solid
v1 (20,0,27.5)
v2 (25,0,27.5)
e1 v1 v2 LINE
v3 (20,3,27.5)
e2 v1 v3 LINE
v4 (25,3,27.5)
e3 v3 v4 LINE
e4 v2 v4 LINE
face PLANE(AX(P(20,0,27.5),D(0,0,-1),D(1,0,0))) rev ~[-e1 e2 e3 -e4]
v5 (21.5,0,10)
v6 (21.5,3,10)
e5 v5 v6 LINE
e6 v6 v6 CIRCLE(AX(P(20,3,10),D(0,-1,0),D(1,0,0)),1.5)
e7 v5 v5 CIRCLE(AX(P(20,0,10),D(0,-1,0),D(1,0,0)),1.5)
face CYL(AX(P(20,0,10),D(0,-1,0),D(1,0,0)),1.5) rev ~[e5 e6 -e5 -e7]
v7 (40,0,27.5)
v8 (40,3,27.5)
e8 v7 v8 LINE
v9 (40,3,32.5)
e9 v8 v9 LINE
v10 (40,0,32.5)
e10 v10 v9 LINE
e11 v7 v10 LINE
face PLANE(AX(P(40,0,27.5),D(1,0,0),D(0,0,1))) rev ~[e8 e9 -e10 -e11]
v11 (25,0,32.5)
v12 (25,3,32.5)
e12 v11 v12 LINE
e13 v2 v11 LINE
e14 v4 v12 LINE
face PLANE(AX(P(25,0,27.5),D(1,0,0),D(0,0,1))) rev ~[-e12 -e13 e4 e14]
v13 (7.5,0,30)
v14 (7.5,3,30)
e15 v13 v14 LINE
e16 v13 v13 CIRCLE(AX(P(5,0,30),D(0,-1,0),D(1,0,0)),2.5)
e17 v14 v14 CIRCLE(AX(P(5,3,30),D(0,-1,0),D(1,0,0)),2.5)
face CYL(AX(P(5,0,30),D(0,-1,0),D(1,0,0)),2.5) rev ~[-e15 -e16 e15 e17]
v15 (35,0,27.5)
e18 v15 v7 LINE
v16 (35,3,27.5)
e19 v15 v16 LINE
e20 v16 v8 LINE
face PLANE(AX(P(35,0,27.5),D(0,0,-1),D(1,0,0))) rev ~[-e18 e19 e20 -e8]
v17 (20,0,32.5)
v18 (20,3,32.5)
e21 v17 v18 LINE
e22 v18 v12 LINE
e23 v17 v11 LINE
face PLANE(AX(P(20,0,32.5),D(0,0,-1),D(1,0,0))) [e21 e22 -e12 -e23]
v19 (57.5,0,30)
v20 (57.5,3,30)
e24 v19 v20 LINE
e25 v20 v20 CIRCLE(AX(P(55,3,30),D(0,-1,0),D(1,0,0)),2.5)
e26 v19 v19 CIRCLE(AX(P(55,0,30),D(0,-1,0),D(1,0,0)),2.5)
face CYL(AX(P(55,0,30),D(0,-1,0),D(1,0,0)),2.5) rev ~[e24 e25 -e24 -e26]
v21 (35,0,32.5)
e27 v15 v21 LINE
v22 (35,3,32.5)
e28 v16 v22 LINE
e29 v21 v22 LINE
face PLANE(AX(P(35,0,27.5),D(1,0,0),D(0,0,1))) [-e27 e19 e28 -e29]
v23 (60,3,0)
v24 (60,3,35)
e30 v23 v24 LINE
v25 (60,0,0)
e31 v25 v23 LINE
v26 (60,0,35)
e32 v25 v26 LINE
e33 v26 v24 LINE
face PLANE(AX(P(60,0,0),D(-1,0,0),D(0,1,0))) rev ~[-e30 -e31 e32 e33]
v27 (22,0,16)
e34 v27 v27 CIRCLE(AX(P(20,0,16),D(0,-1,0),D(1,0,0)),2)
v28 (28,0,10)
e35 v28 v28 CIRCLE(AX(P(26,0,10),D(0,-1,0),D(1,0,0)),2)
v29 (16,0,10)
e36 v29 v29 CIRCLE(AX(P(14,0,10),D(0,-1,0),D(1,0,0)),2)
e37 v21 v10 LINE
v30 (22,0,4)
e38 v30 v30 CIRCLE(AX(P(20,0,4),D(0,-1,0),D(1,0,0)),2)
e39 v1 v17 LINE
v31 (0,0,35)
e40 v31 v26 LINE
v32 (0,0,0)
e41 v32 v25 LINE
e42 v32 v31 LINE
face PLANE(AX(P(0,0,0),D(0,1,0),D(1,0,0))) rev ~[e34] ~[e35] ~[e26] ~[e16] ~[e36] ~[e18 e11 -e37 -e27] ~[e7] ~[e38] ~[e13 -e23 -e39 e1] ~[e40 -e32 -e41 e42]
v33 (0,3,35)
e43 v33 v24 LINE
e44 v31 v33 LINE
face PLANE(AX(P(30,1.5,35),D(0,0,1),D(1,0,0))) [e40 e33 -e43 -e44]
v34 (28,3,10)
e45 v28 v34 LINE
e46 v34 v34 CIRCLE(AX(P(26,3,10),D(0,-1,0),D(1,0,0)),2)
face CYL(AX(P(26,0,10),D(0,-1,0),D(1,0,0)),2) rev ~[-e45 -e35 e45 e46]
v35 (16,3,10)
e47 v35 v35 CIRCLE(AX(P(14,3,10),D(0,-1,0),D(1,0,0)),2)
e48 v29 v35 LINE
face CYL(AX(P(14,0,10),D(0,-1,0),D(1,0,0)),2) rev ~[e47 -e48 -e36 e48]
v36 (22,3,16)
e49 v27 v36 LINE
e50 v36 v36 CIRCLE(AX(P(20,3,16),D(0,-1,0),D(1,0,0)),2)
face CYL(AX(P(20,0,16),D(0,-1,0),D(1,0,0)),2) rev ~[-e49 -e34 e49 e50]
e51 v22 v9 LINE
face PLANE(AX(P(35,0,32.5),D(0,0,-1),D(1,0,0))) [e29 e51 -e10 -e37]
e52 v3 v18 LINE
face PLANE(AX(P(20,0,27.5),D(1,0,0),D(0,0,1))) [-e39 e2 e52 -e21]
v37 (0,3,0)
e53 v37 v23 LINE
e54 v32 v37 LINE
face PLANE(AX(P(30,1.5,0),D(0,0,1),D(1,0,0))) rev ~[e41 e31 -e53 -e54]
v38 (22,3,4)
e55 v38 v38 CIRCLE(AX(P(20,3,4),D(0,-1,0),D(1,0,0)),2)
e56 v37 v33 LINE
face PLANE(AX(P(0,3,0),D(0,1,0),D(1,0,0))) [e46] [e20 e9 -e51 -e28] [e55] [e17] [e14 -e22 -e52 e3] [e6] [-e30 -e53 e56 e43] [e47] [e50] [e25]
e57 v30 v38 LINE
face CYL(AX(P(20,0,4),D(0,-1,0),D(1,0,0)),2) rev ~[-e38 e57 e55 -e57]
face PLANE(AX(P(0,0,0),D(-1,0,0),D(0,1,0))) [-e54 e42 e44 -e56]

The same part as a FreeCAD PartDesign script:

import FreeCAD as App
import Part
import Sketcher

V = App.Vector
Q = App.Units.Quantity

doc = App.newDocument("Part")
params = doc.addObject("Spreadsheet::Sheet", "Params")
for row, (alias, value) in enumerate([
    ("sketch1_width", "60 mm"),
    ("sketch1_height", "3 mm"),
    ("pad1_length", "35 mm"),
    ("sketch2_diameter", "3 mm"),
    ("sketch2_diameter2", "4 mm"),
    ("sketch2_diameter3", "5 mm"),
    ("sketch2_width", "5 mm"),
    ("pocket1_length", "3 mm"),
], start=1):
    params.set(f"A{row}", alias)
    params.set(f"B{row}", "=" + value)
    params.setAlias(f"B{row}", alias)

body = doc.addObject("PartDesign::Body", "Body")

# Sketch on XY plane
sketch1 = body.newObject("Sketcher::SketchObject", "Sketch")
sketch1.AttachmentSupport = (doc.getObject("XY_Plane"), [""])
sketch1.MapMode = "FlatFace"
sketch1.addGeometry(Part.LineSegment(V(0, 3, 0), V(0, 0, 0)), False)
sketch1.addGeometry(Part.LineSegment(V(0, 0, 0), V(60, 0, 0)), False)
sketch1.addGeometry(Part.LineSegment(V(60, 0, 0), V(60, 3, 0)), False)
sketch1.addGeometry(Part.LineSegment(V(60, 3, 0), V(0, 3, 0)), False)
sketch1.addConstraint(Sketcher.Constraint("Coincident", 0, 2, 1, 1))
sketch1.addConstraint(Sketcher.Constraint("Coincident", 1, 2, 2, 1))
sketch1.addConstraint(Sketcher.Constraint("Coincident", 2, 2, 3, 1))
sketch1.addConstraint(Sketcher.Constraint("Coincident", 3, 2, 0, 1))
sketch1.addConstraint(Sketcher.Constraint("Vertical", 0))
sketch1.addConstraint(Sketcher.Constraint("Horizontal", 1))
sketch1.addConstraint(Sketcher.Constraint("Vertical", 2))
sketch1.addConstraint(Sketcher.Constraint("Horizontal", 3))
sketch1.addConstraint(Sketcher.Constraint("Coincident", 0, 2, -1, 1))
sketch1.addConstraint(Sketcher.Constraint("DistanceX", 1, 1, 1, 2, Q("60 mm")))
sketch1.addConstraint(Sketcher.Constraint("DistanceY", 0, 2, 0, 1, Q("3 mm")))
sketch1.setExpression("Constraints[9]", "Params.sketch1_width")
sketch1.setExpression("Constraints[10]", "Params.sketch1_height")
pad1 = body.newObject("PartDesign::Pad", "Pad")
pad1.Profile = sketch1
pad1.setExpression("Length", "Params.pad1_length")

# Sketch on XZ plane
sketch2 = body.newObject("Sketcher::SketchObject", "Sketch001")
sketch2.AttachmentSupport = (doc.getObject("XZ_Plane"), [""])
sketch2.MapMode = "FlatFace"
sketch2.addGeometry(Part.Circle(V(20, 10, 0), V(0, 0, 1), 1.5), False)
sketch2.addGeometry(Part.Circle(V(26, 10, 0), V(0, 0, 1), 2), False)
sketch2.addGeometry(Part.Circle(V(20, 16, 0), V(0, 0, 1), 2), False)
sketch2.addGeometry(Part.Circle(V(14, 10, 0), V(0, 0, 1), 2), False)
sketch2.addGeometry(Part.Circle(V(20, 4, 0), V(0, 0, 1), 2), False)
sketch2.addGeometry(Part.Circle(V(5, 30, 0), V(0, 0, 1), 2.5), False)
sketch2.addGeometry(Part.Circle(V(55, 30, 0), V(0, 0, 1), 2.5), False)
sketch2.addGeometry(Part.LineSegment(V(20, 32.5, 0), V(20, 27.5, 0)), False)
sketch2.addGeometry(Part.LineSegment(V(20, 27.5, 0), V(25, 27.5, 0)), False)
sketch2.addGeometry(Part.LineSegment(V(25, 27.5, 0), V(25, 32.5, 0)), False)
sketch2.addGeometry(Part.LineSegment(V(25, 32.5, 0), V(20, 32.5, 0)), False)
sketch2.addGeometry(Part.LineSegment(V(35, 32.5, 0), V(35, 27.5, 0)), False)
sketch2.addGeometry(Part.LineSegment(V(35, 27.5, 0), V(40, 27.5, 0)), False)
sketch2.addGeometry(Part.LineSegment(V(40, 27.5, 0), V(40, 32.5, 0)), False)
sketch2.addGeometry(Part.LineSegment(V(40, 32.5, 0), V(35, 32.5, 0)), False)
sketch2.addConstraint(Sketcher.Constraint("Coincident", 7, 2, 8, 1))
sketch2.addConstraint(Sketcher.Constraint("Coincident", 8, 2, 9, 1))
sketch2.addConstraint(Sketcher.Constraint("Coincident", 9, 2, 10, 1))
sketch2.addConstraint(Sketcher.Constraint("Coincident", 10, 2, 7, 1))
sketch2.addConstraint(Sketcher.Constraint("Coincident", 11, 2, 12, 1))
sketch2.addConstraint(Sketcher.Constraint("Coincident", 12, 2, 13, 1))
sketch2.addConstraint(Sketcher.Constraint("Coincident", 13, 2, 14, 1))
sketch2.addConstraint(Sketcher.Constraint("Coincident", 14, 2, 11, 1))
sketch2.addConstraint(Sketcher.Constraint("Vertical", 7))
sketch2.addConstraint(Sketcher.Constraint("Horizontal", 8))
sketch2.addConstraint(Sketcher.Constraint("Vertical", 9))
sketch2.addConstraint(Sketcher.Constraint("Horizontal", 10))
sketch2.addConstraint(Sketcher.Constraint("Vertical", 11))
sketch2.addConstraint(Sketcher.Constraint("Horizontal", 12))
sketch2.addConstraint(Sketcher.Constraint("Vertical", 13))
sketch2.addConstraint(Sketcher.Constraint("Horizontal", 14))
sketch2.addConstraint(Sketcher.Constraint("Equal", 1, 2))
sketch2.addConstraint(Sketcher.Constraint("Equal", 2, 3))
sketch2.addConstraint(Sketcher.Constraint("Equal", 3, 4))
sketch2.addConstraint(Sketcher.Constraint("Equal", 5, 6))
sketch2.addConstraint(Sketcher.Constraint("Horizontal", 0, 3, 1, 3))
sketch2.addConstraint(Sketcher.Constraint("Horizontal", 1, 3, 3, 3))
sketch2.addConstraint(Sketcher.Constraint("Horizontal", 5, 3, 6, 3))
sketch2.addConstraint(Sketcher.Constraint("Horizontal", 8, 2, 11, 2))
sketch2.addConstraint(Sketcher.Constraint("Horizontal", 10, 2, 13, 2))
sketch2.addConstraint(Sketcher.Constraint("Vertical", 0, 3, 2, 3))
sketch2.addConstraint(Sketcher.Constraint("Vertical", 2, 3, 4, 3))
sketch2.addConstraint(Sketcher.Constraint("Vertical", 4, 3, 7, 2))
sketch2.addConstraint(Sketcher.Constraint("Equal", 10, 12))
sketch2.addConstraint(Sketcher.Constraint("Equal", 14, 7))
sketch2.addConstraint(Sketcher.Constraint("Diameter", 0, Q("3 mm")))
sketch2.addConstraint(Sketcher.Constraint("Diameter", 1, Q("4 mm")))
sketch2.addConstraint(Sketcher.Constraint("Diameter", 5, Q("5 mm")))
sketch2.addConstraint(Sketcher.Constraint("DistanceX", 8, 1, 8, 2, Q("5 mm")))
sketch2.addConstraint(Sketcher.Constraint("DistanceX", -1, 1, 0, 3, Q("20 mm")))
sketch2.addConstraint(Sketcher.Constraint("DistanceY", -1, 1, 0, 3, Q("10 mm")))
sketch2.addConstraint(Sketcher.Constraint("DistanceX", -1, 1, 1, 3, Q("26 mm")))
sketch2.addConstraint(Sketcher.Constraint("DistanceY", -1, 1, 2, 3, Q("16 mm")))
sketch2.addConstraint(Sketcher.Constraint("DistanceX", -1, 1, 3, 3, Q("14 mm")))
sketch2.addConstraint(Sketcher.Constraint("DistanceY", -1, 1, 4, 3, Q("4 mm")))
sketch2.addConstraint(Sketcher.Constraint("DistanceX", -1, 1, 5, 3, Q("5 mm")))
sketch2.addConstraint(Sketcher.Constraint("DistanceY", -1, 1, 5, 3, Q("30 mm")))
sketch2.addConstraint(Sketcher.Constraint("DistanceX", -1, 1, 6, 3, Q("55 mm")))
sketch2.addConstraint(Sketcher.Constraint("DistanceX", -1, 1, 11, 2, Q("35 mm")))
sketch2.addConstraint(Sketcher.Constraint("DistanceY", -1, 1, 7, 2, Q("27.5 mm")))
sketch2.setExpression("Constraints[30]", "Params.sketch2_diameter")
sketch2.setExpression("Constraints[31]", "Params.sketch2_diameter2")
sketch2.setExpression("Constraints[32]", "Params.sketch2_diameter3")
sketch2.setExpression("Constraints[33]", "Params.sketch2_width")
pocket1 = body.newObject("PartDesign::Pocket", "Pocket")
pocket1.Profile = sketch2
pocket1.setExpression("Length", "Params.pocket1_length")

doc.recompute()
